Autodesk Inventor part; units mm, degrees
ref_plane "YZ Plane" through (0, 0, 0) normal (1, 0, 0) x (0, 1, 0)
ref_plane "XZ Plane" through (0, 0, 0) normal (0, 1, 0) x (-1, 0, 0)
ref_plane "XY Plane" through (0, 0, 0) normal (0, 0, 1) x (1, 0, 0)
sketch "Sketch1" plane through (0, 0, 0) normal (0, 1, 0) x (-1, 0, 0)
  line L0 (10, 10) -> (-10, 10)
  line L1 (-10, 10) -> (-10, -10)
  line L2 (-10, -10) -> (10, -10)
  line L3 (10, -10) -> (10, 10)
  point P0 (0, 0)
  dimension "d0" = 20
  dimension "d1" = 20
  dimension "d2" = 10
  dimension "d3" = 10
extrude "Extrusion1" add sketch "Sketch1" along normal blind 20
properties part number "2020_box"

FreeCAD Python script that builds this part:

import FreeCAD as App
import Part
import Sketcher
Q = App.Units.Quantity


def add_polygon(sketch, points):
    """Adds a closed chain of lines whose ends are joined by coincident constraints."""
    first, n = sketch.GeometryCount, len(points)
    for a, b in zip(points, points[1:] + points[:1]):
        sketch.addGeometry(Part.LineSegment(App.Vector(*a, 0), App.Vector(*b, 0)), False)
    for i in range(n):
        sketch.addConstraint(Sketcher.Constraint("Coincident", first + i, 2, first + (i + 1) % n, 1))

doc = App.newDocument("Part")
body = doc.addObject("PartDesign::Body", "Body")

sketch1 = body.newObject("Sketcher::SketchObject", "Sketch")
sketch1.AttachmentSupport = (doc.getObject("XZ_Plane"), [""])
sketch1.MapMode = "FlatFace"
add_polygon(sketch1, [(-10, -10), (-10, 10), (10, 10), (10, -10)])
sketch1.addConstraint([
    Sketcher.Constraint("Vertical", 0),
    Sketcher.Constraint("Horizontal", 1),
    Sketcher.Constraint("Vertical", 2),
    Sketcher.Constraint("Horizontal", 3),
    Sketcher.Constraint("Symmetric", 0, 2, 2, 2, -1, 1),
    Sketcher.Constraint("Equal", 3, 0),
    Sketcher.Constraint("DistanceX", 1, 1, 1, 2, Q("20 mm")),
])
pad1 = body.newObject("PartDesign::Pad", "Pad")
pad1.Profile = sketch1
pad1.Length = 20
pad1.Reversed = True

doc.recompute()
